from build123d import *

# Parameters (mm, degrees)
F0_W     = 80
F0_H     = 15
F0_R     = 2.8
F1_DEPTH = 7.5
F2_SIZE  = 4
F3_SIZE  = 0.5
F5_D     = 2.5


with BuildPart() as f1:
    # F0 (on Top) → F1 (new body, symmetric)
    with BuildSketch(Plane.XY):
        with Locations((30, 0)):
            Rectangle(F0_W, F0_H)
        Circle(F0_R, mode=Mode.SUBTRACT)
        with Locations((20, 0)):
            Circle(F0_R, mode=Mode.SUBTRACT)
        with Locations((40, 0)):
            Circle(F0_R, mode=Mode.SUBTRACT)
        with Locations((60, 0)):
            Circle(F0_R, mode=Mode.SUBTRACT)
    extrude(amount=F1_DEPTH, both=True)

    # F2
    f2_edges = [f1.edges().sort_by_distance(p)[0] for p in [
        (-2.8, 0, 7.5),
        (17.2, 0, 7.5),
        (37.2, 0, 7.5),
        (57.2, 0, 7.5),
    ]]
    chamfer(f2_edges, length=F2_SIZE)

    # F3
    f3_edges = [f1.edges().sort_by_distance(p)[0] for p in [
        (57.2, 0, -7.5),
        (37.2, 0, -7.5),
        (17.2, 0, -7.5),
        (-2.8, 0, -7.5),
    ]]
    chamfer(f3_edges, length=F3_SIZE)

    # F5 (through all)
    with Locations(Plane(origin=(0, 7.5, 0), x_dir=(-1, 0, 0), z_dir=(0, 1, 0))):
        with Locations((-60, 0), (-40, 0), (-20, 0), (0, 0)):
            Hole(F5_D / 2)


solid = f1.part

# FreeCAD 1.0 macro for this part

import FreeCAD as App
import Part
import Sketcher
Q = App.Units.Quantity


def edges_at(feature, points):
    """Names of the edges that pass closest to the given points."""
    edges = feature.Shape.Edges
    near = lambda p: min(range(len(edges)), key=lambda i: edges[i].distToShape(Part.Vertex(*p))[0])
    return sorted({f"Edge{near(p) + 1}" for p in points})

doc = App.newDocument("Part")
body = doc.addObject("PartDesign::Body", "Body")

sketch1 = doc.addObject("Sketcher::SketchObject", "Sketch")
body.addObject(sketch1)
sketch1.AttachmentSupport = (doc.XY_Plane, [""])
sketch1.MapMode = "FlatFace"
sketch1.addGeometry([
    Part.LineSegment(App.Vector(-10, 7.5, 0), App.Vector(-10, -7.5, 0)),
    Part.LineSegment(App.Vector(-10, -7.5, 0), App.Vector(70, -7.5, 0)),
    Part.LineSegment(App.Vector(70, -7.5, 0), App.Vector(70, 7.5, 0)),
    Part.LineSegment(App.Vector(70, 7.5, 0), App.Vector(-10, 7.5, 0)),
    Part.Circle(App.Vector(0, 0, 0), App.Vector(0, 0, 1), 2.8),
    Part.Circle(App.Vector(20, 0, 0), App.Vector(0, 0, 1), 2.8),
    Part.Circle(App.Vector(40, 0, 0), App.Vector(0, 0, 1), 2.8),
    Part.Circle(App.Vector(60, 0, 0), App.Vector(0, 0, 1), 2.8),
], False)
sketch1.addConstraint([
    Sketcher.Constraint("Coincident", 0, 2, 1, 1),
    Sketcher.Constraint("Coincident", 1, 2, 2, 1),
    Sketcher.Constraint("Coincident", 2, 2, 3, 1),
    Sketcher.Constraint("Coincident", 3, 2, 0, 1),
    Sketcher.Constraint("Vertical", 0),
    Sketcher.Constraint("Horizontal", 1),
    Sketcher.Constraint("Vertical", 2),
    Sketcher.Constraint("Horizontal", 3),
    Sketcher.Constraint("Coincident", 4, 3, -1, 1),
    Sketcher.Constraint("Equal", 4, 5),
    Sketcher.Constraint("Equal", 5, 6),
    Sketcher.Constraint("Equal", 6, 7),
    Sketcher.Constraint("PointOnObject", 5, 3, -1),
    Sketcher.Constraint("PointOnObject", 6, 3, -1),
    Sketcher.Constraint("PointOnObject", 7, 3, -1),
    Sketcher.Constraint("Diameter", 4, Q("5.6 mm")),
    Sketcher.Constraint("DistanceX", 1, 1, 1, 2, Q("80 mm")),
    Sketcher.Constraint("DistanceY", 0, 2, 0, 1, Q("15 mm")),
    Sketcher.Constraint("DistanceX", -1, 1, 5, 3, Q("20 mm")),
    Sketcher.Constraint("DistanceX", -1, 1, 6, 3, Q("40 mm")),
    Sketcher.Constraint("DistanceX", -1, 1, 7, 3, Q("60 mm")),
    Sketcher.Constraint("DistanceX", 0, 2, -1, 1, Q("10 mm")),
    Sketcher.Constraint("DistanceY", 0, 2, -1, 1, Q("7.5 mm")),
])
pad1 = doc.addObject("PartDesign::Pad", "Pad")
body.addObject(pad1)
pad1.Profile = sketch1
pad1.Length = 15
pad1.Midplane = True
doc.recompute()

chamfer = doc.addObject("PartDesign::Chamfer", "Chamfer")
body.addObject(chamfer)
chamfer.Base = (pad1, edges_at(pad1, [
    (-2.8, 0, 7.5),
    (17.2, 0, 7.5),
    (37.2, 0, 7.5),
    (57.2, 0, 7.5),
]))
chamfer.Size = 4
doc.recompute()

chamfer2 = doc.addObject("PartDesign::Chamfer", "Chamfer001")
body.addObject(chamfer2)
chamfer2.Base = (chamfer, edges_at(chamfer, [
    (57.2, 0, -7.5),
    (37.2, 0, -7.5),
    (17.2, 0, -7.5),
    (-2.8, 0, -7.5),
]))
chamfer2.Size = 0.5

sketch2 = doc.addObject("Sketcher::SketchObject", "Sketch001")
body.addObject(sketch2)
sketch2.AttachmentSupport = (doc.XZ_Plane, [""])
sketch2.MapMode = "FlatFace"
sketch2.AttachmentOffset = App.Placement(App.Vector(0, 0, -7.5), App.Rotation())
sketch2.addGeometry([
    Part.Circle(App.Vector(60, 0, 0), App.Vector(0, 0, 1), 1.2),
    Part.Circle(App.Vector(40, 0, 0), App.Vector(0, 0, 1), 1.2),
    Part.Circle(App.Vector(20, 0, 0), App.Vector(0, 0, 1), 1.2),
    Part.Circle(App.Vector(0, 0, 0), App.Vector(0, 0, 1), 1.2),
], False)
sketch2.addConstraint([
    Sketcher.Constraint("Coincident", 3, 3, -1, 1),
    Sketcher.Constraint("Equal", 0, 1),
    Sketcher.Constraint("Equal", 1, 2),
    Sketcher.Constraint("Equal", 2, 3),
    Sketcher.Constraint("PointOnObject", 0, 3, -1),
    Sketcher.Constraint("PointOnObject", 1, 3, -1),
    Sketcher.Constraint("PointOnObject", 2, 3, -1),
    Sketcher.Constraint("Diameter", 0, Q("2.5 mm")),
    Sketcher.Constraint("DistanceX", -1, 1, 0, 3, Q("60 mm")),
    Sketcher.Constraint("DistanceX", -1, 1, 1, 3, Q("40 mm")),
    Sketcher.Constraint("DistanceX", -1, 1, 2, 3, Q("20 mm")),
])
doc.recompute()
hole = doc.addObject("PartDesign::Hole", "Hole")
body.addObject(hole)
hole.Profile = sketch2
hole.ThreadType = "None"
hole.Diameter = 2.5
hole.DepthType = "ThroughAll"
hole.Reversed = True

doc.recompute()
